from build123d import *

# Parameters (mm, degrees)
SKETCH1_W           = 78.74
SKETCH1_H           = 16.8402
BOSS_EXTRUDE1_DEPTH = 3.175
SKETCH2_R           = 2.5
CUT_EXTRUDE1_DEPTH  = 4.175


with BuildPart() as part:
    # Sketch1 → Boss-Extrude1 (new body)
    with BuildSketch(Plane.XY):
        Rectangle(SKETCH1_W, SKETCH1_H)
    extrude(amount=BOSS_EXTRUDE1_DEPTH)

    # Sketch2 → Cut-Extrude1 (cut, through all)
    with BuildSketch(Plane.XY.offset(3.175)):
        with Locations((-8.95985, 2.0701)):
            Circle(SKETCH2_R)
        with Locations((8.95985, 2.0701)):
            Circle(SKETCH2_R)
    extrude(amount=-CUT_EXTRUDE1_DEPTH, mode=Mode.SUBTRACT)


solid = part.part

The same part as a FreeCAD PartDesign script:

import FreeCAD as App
import Part
import Sketcher
Q = App.Units.Quantity


def add_polygon(sketch, points):
    """Adds a closed chain of lines whose ends are joined by coincident constraints."""
    first, n = sketch.GeometryCount, len(points)
    for a, b in zip(points, points[1:] + points[:1]):
        sketch.addGeometry(Part.LineSegment(App.Vector(*a, 0), App.Vector(*b, 0)), False)
    for i in range(n):
        sketch.addConstraint(Sketcher.Constraint("Coincident", first + i, 2, first + (i + 1) % n, 1))

doc = App.newDocument("Part")
params = doc.addObject("Spreadsheet::Sheet", "Params")
for row, (alias, value) in enumerate([
    ("sketch1_width", "3.1 in"),
    ("sketch1_height", "0.663 in"),
    ("pad1_length", "0.125 in"),
], start=1):
    params.set(f"A{row}", alias)
    params.set(f"B{row}", "=" + value)
    params.setAlias(f"B{row}", alias)

body = doc.addObject("PartDesign::Body", "Body")

sketch1 = doc.addObject("Sketcher::SketchObject", "Sketch")
body.addObject(sketch1)
sketch1.AttachmentSupport = (doc.XY_Plane, [""])
sketch1.MapMode = "FlatFace"
add_polygon(sketch1, [(-39, 8), (-39, -8), (39, -8), (39, 8)])
sketch1.addConstraint([
    Sketcher.Constraint("Vertical", 0),
    Sketcher.Constraint("Horizontal", 1),
    Sketcher.Constraint("Vertical", 2),
    Sketcher.Constraint("Horizontal", 3),
    Sketcher.Constraint("Symmetric", 0, 2, 2, 2, -1, 1),
    Sketcher.Constraint("DistanceX", 1, 1, 1, 2, Q("3.1 in")),
    Sketcher.Constraint("DistanceY", 0, 2, 0, 1, Q("0.663 in")),
])
sketch1.setExpression("Constraints[9]", "Params.sketch1_width")
sketch1.setExpression("Constraints[10]", "Params.sketch1_height")
pad1 = doc.addObject("PartDesign::Pad", "Pad")
body.addObject(pad1)
pad1.Profile = sketch1
pad1.setExpression("Length", "Params.pad1_length")

sketch2 = doc.addObject("Sketcher::SketchObject", "Sketch001")
body.addObject(sketch2)
sketch2.AttachmentSupport = (doc.XY_Plane, [""])
sketch2.MapMode = "FlatFace"
sketch2.AttachmentOffset = App.Placement(App.Vector(0, 0, 0.125 * 25.4), App.Rotation())
sketch2.addGeometry([
    Part.Circle(App.Vector(-9, 2.1, 0), App.Vector(0, 0, 1), 2.5),
    Part.Circle(App.Vector(9, 2.1, 0), App.Vector(0, 0, 1), 2.5),
], False)
sketch2.addConstraint([
    Sketcher.Constraint("Equal", 0, 1),
    Sketcher.Constraint("Symmetric", 0, 3, 1, 3, -2),
    Sketcher.Constraint("Diameter", 0, 5.0),
    Sketcher.Constraint("DistanceY", -1, 1, 0, 3, Q("0.0815 in")),
    Sketcher.Constraint("DistanceX", 0, 3, 1, 3, Q("0.7055 in")),
])
pocket1 = doc.addObject("PartDesign::Pocket", "Pocket")
body.addObject(pocket1)
pocket1.Profile = sketch2
pocket1.Type = "ThroughAll"

doc.recompute()
